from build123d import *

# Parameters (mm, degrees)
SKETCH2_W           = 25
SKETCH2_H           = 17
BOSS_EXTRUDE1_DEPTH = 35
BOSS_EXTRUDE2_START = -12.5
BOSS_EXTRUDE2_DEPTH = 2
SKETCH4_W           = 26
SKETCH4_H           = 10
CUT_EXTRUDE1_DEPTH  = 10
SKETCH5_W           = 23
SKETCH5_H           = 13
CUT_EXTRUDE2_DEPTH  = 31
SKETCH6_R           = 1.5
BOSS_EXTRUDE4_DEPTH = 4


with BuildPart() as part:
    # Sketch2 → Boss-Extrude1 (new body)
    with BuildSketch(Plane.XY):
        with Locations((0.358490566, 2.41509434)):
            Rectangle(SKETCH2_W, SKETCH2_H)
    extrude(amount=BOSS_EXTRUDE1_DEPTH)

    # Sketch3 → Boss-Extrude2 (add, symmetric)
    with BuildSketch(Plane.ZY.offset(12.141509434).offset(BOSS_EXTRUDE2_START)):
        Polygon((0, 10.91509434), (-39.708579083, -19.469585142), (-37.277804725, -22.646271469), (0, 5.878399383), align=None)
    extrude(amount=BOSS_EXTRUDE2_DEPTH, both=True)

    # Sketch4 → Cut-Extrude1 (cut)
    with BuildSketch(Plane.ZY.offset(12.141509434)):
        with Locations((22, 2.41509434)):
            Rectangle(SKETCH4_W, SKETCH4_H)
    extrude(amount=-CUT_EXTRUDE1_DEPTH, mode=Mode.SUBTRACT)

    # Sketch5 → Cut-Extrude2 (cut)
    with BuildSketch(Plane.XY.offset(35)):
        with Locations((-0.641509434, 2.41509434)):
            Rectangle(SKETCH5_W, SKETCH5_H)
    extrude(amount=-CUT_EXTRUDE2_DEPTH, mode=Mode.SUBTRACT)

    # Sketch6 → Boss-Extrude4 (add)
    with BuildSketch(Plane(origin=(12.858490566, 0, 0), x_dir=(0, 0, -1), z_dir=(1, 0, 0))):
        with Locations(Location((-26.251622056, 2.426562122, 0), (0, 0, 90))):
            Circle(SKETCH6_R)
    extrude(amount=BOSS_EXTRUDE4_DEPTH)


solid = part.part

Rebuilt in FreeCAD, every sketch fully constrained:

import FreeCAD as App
import Part
import Sketcher
Q = App.Units.Quantity

doc = App.newDocument("Part")
body = doc.addObject("PartDesign::Body", "Body")

sketch1 = doc.addObject("Sketcher::SketchObject", "Sketch")
body.addObject(sketch1)
sketch1.AttachmentSupport = (doc.XY_Plane, [""])
sketch1.MapMode = "FlatFace"
sketch1.addGeometry(Part.LineSegment(App.Vector(-12, 11, 0), App.Vector(-12, -6, 0)), False)
sketch1.addGeometry(Part.LineSegment(App.Vector(-12, -6, 0), App.Vector(13, -6, 0)), False)
sketch1.addGeometry(Part.LineSegment(App.Vector(13, -6, 0), App.Vector(13, 11, 0)), False)
sketch1.addGeometry(Part.LineSegment(App.Vector(13, 11, 0), App.Vector(-12, 11, 0)), False)
sketch1.addConstraint(Sketcher.Constraint("Coincident", 0, 2, 1, 1))
sketch1.addConstraint(Sketcher.Constraint("Coincident", 1, 2, 2, 1))
sketch1.addConstraint(Sketcher.Constraint("Coincident", 2, 2, 3, 1))
sketch1.addConstraint(Sketcher.Constraint("Coincident", 3, 2, 0, 1))
sketch1.addConstraint(Sketcher.Constraint("Vertical", 0))
sketch1.addConstraint(Sketcher.Constraint("Horizontal", 1))
sketch1.addConstraint(Sketcher.Constraint("Vertical", 2))
sketch1.addConstraint(Sketcher.Constraint("Horizontal", 3))
sketch1.addConstraint(Sketcher.Constraint("DistanceX", 1, 1, 1, 2, Q("25 mm")))
sketch1.addConstraint(Sketcher.Constraint("DistanceY", 0, 2, 0, 1, Q("17 mm")))
sketch1.addConstraint(Sketcher.Constraint("DistanceX", 0, 2, -1, 1, Q("12.141509 mm")))
sketch1.addConstraint(Sketcher.Constraint("DistanceY", 0, 2, -1, 1, Q("6.084906 mm")))
pad1 = doc.addObject("PartDesign::Pad", "Pad")
body.addObject(pad1)
pad1.Profile = sketch1
pad1.Length = 35

sketch2 = doc.addObject("Sketcher::SketchObject", "Sketch001")
body.addObject(sketch2)
sketch2.AttachmentSupport = (doc.YZ_Plane, [""])
sketch2.MapMode = "FlatFace"
sketch2.AttachmentOffset = App.Placement(App.Vector(0, 0, 0.358491), App.Rotation())
sketch2.addGeometry(Part.LineSegment(App.Vector(10.9, 0, 0), App.Vector(-19.5, -39.7, 0)), False)
sketch2.addGeometry(Part.LineSegment(App.Vector(-19.5, -39.7, 0), App.Vector(-22.6, -37.3, 0)), False)
sketch2.addGeometry(Part.LineSegment(App.Vector(-22.6, -37.3, 0), App.Vector(5.9, 0, 0)), False)
sketch2.addGeometry(Part.LineSegment(App.Vector(5.9, 0, 0), App.Vector(10.9, 0, 0)), False)
sketch2.addConstraint(Sketcher.Constraint("Coincident", 0, 2, 1, 1))
sketch2.addConstraint(Sketcher.Constraint("Coincident", 1, 2, 2, 1))
sketch2.addConstraint(Sketcher.Constraint("Coincident", 2, 2, 3, 1))
sketch2.addConstraint(Sketcher.Constraint("Coincident", 3, 2, 0, 1))
sketch2.addConstraint(Sketcher.Constraint("Horizontal", 3))
sketch2.addConstraint(Sketcher.Constraint("PointOnObject", 2, 2, -1))
sketch2.addConstraint(Sketcher.Constraint("Perpendicular", 0, 1))
sketch2.addConstraint(Sketcher.Constraint("Perpendicular", 1, 2))
sketch2.addConstraint(Sketcher.Constraint("Distance", 0, Q("50 mm")))
sketch2.addConstraint(Sketcher.Constraint("Distance", 1, Q("4 mm")))
sketch2.addConstraint(Sketcher.Constraint("DistanceX", -1, 1, 2, 2, Q("5.878399 mm")))
sketch2.addConstraint(Sketcher.Constraint("DistanceX", 3, 1, 3, 2, Q("5.036695 mm")))
pad2 = doc.addObject("PartDesign::Pad", "Pad001")
body.addObject(pad2)
pad2.Profile = sketch2
pad2.Length = 4
pad2.Midplane = True

sketch3 = doc.addObject("Sketcher::SketchObject", "Sketch002")
body.addObject(sketch3)
sketch3.AttachmentSupport = (doc.YZ_Plane, [""])
sketch3.MapMode = "FlatFace"
sketch3.AttachmentOffset = App.Placement(App.Vector(0, 0, -12.141509), App.Rotation())
sketch3.addGeometry(Part.LineSegment(App.Vector(7, 9, 0), App.Vector(-3, 9, 0)), False)
sketch3.addGeometry(Part.LineSegment(App.Vector(-3, 9, 0), App.Vector(-3, 35, 0)), False)
sketch3.addGeometry(Part.LineSegment(App.Vector(-3, 35, 0), App.Vector(7, 35, 0)), False)
sketch3.addGeometry(Part.LineSegment(App.Vector(7, 35, 0), App.Vector(7, 9, 0)), False)
sketch3.addConstraint(Sketcher.Constraint("Coincident", 0, 2, 1, 1))
sketch3.addConstraint(Sketcher.Constraint("Coincident", 1, 2, 2, 1))
sketch3.addConstraint(Sketcher.Constraint("Coincident", 2, 2, 3, 1))
sketch3.addConstraint(Sketcher.Constraint("Coincident", 3, 2, 0, 1))
sketch3.addConstraint(Sketcher.Constraint("Horizontal", 0))
sketch3.addConstraint(Sketcher.Constraint("Vertical", 1))
sketch3.addConstraint(Sketcher.Constraint("Horizontal", 2))
sketch3.addConstraint(Sketcher.Constraint("Vertical", 3))
sketch3.addConstraint(Sketcher.Constraint("DistanceX", 0, 2, 0, 1, Q("10 mm")))
sketch3.addConstraint(Sketcher.Constraint("DistanceY", 1, 1, 1, 2, Q("26 mm")))
sketch3.addConstraint(Sketcher.Constraint("DistanceY", -1, 1, 0, 2, Q("9 mm")))
sketch3.addConstraint(Sketcher.Constraint("DistanceX", 0, 2, -1, 1, Q("2.584906 mm")))
pocket1 = doc.addObject("PartDesign::Pocket", "Pocket")
body.addObject(pocket1)
pocket1.Profile = sketch3
pocket1.Length = 10
pocket1.Reversed = True

sketch4 = doc.addObject("Sketcher::SketchObject", "Sketch003")
body.addObject(sketch4)
sketch4.AttachmentSupport = (doc.XY_Plane, [""])
sketch4.MapMode = "FlatFace"
sketch4.AttachmentOffset = App.Placement(App.Vector(0, 0, 35), App.Rotation())
sketch4.addGeometry(Part.LineSegment(App.Vector(-12, 9, 0), App.Vector(-12, -4, 0)), False)
sketch4.addGeometry(Part.LineSegment(App.Vector(-12, -4, 0), App.Vector(11, -4, 0)), False)
sketch4.addGeometry(Part.LineSegment(App.Vector(11, -4, 0), App.Vector(11, 9, 0)), False)
sketch4.addGeometry(Part.LineSegment(App.Vector(11, 9, 0), App.Vector(-12, 9, 0)), False)
sketch4.addConstraint(Sketcher.Constraint("Coincident", 0, 2, 1, 1))
sketch4.addConstraint(Sketcher.Constraint("Coincident", 1, 2, 2, 1))
sketch4.addConstraint(Sketcher.Constraint("Coincident", 2, 2, 3, 1))
sketch4.addConstraint(Sketcher.Constraint("Coincident", 3, 2, 0, 1))
sketch4.addConstraint(Sketcher.Constraint("Vertical", 0))
sketch4.addConstraint(Sketcher.Constraint("Horizontal", 1))
sketch4.addConstraint(Sketcher.Constraint("Vertical", 2))
sketch4.addConstraint(Sketcher.Constraint("Horizontal", 3))
sketch4.addConstraint(Sketcher.Constraint("DistanceX", 1, 1, 1, 2, Q("23 mm")))
sketch4.addConstraint(Sketcher.Constraint("DistanceY", 0, 2, 0, 1, Q("13 mm")))
sketch4.addConstraint(Sketcher.Constraint("DistanceX", 0, 2, -1, 1, Q("12.141509 mm")))
sketch4.addConstraint(Sketcher.Constraint("DistanceY", 0, 2, -1, 1, Q("4.084906 mm")))
pocket2 = doc.addObject("PartDesign::Pocket", "Pocket001")
body.addObject(pocket2)
pocket2.Profile = sketch4
pocket2.Length = 31

sketch5 = doc.addObject("Sketcher::SketchObject", "Sketch004")
body.addObject(sketch5)
sketch5.AttachmentSupport = (doc.YZ_Plane, [""])
sketch5.MapMode = "FlatFace"
sketch5.AttachmentOffset = App.Placement(App.Vector(0, 0, 12.858491), App.Rotation())
sketch5.addGeometry(Part.Circle(App.Vector(2.4, 26.3, 0), App.Vector(0, 0, 1), 1.5), False)
sketch5.addConstraint(Sketcher.Constraint("Diameter", 0, Q("3 mm")))
sketch5.addConstraint(Sketcher.Constraint("DistanceX", -1, 1, 0, 3, Q("2.426562 mm")))
sketch5.addConstraint(Sketcher.Constraint("DistanceY", -1, 1, 0, 3, Q("26.251622 mm")))
pad3 = doc.addObject("PartDesign::Pad", "Pad002")
body.addObject(pad3)
pad3.Profile = sketch5
pad3.Length = 4

doc.recompute()
